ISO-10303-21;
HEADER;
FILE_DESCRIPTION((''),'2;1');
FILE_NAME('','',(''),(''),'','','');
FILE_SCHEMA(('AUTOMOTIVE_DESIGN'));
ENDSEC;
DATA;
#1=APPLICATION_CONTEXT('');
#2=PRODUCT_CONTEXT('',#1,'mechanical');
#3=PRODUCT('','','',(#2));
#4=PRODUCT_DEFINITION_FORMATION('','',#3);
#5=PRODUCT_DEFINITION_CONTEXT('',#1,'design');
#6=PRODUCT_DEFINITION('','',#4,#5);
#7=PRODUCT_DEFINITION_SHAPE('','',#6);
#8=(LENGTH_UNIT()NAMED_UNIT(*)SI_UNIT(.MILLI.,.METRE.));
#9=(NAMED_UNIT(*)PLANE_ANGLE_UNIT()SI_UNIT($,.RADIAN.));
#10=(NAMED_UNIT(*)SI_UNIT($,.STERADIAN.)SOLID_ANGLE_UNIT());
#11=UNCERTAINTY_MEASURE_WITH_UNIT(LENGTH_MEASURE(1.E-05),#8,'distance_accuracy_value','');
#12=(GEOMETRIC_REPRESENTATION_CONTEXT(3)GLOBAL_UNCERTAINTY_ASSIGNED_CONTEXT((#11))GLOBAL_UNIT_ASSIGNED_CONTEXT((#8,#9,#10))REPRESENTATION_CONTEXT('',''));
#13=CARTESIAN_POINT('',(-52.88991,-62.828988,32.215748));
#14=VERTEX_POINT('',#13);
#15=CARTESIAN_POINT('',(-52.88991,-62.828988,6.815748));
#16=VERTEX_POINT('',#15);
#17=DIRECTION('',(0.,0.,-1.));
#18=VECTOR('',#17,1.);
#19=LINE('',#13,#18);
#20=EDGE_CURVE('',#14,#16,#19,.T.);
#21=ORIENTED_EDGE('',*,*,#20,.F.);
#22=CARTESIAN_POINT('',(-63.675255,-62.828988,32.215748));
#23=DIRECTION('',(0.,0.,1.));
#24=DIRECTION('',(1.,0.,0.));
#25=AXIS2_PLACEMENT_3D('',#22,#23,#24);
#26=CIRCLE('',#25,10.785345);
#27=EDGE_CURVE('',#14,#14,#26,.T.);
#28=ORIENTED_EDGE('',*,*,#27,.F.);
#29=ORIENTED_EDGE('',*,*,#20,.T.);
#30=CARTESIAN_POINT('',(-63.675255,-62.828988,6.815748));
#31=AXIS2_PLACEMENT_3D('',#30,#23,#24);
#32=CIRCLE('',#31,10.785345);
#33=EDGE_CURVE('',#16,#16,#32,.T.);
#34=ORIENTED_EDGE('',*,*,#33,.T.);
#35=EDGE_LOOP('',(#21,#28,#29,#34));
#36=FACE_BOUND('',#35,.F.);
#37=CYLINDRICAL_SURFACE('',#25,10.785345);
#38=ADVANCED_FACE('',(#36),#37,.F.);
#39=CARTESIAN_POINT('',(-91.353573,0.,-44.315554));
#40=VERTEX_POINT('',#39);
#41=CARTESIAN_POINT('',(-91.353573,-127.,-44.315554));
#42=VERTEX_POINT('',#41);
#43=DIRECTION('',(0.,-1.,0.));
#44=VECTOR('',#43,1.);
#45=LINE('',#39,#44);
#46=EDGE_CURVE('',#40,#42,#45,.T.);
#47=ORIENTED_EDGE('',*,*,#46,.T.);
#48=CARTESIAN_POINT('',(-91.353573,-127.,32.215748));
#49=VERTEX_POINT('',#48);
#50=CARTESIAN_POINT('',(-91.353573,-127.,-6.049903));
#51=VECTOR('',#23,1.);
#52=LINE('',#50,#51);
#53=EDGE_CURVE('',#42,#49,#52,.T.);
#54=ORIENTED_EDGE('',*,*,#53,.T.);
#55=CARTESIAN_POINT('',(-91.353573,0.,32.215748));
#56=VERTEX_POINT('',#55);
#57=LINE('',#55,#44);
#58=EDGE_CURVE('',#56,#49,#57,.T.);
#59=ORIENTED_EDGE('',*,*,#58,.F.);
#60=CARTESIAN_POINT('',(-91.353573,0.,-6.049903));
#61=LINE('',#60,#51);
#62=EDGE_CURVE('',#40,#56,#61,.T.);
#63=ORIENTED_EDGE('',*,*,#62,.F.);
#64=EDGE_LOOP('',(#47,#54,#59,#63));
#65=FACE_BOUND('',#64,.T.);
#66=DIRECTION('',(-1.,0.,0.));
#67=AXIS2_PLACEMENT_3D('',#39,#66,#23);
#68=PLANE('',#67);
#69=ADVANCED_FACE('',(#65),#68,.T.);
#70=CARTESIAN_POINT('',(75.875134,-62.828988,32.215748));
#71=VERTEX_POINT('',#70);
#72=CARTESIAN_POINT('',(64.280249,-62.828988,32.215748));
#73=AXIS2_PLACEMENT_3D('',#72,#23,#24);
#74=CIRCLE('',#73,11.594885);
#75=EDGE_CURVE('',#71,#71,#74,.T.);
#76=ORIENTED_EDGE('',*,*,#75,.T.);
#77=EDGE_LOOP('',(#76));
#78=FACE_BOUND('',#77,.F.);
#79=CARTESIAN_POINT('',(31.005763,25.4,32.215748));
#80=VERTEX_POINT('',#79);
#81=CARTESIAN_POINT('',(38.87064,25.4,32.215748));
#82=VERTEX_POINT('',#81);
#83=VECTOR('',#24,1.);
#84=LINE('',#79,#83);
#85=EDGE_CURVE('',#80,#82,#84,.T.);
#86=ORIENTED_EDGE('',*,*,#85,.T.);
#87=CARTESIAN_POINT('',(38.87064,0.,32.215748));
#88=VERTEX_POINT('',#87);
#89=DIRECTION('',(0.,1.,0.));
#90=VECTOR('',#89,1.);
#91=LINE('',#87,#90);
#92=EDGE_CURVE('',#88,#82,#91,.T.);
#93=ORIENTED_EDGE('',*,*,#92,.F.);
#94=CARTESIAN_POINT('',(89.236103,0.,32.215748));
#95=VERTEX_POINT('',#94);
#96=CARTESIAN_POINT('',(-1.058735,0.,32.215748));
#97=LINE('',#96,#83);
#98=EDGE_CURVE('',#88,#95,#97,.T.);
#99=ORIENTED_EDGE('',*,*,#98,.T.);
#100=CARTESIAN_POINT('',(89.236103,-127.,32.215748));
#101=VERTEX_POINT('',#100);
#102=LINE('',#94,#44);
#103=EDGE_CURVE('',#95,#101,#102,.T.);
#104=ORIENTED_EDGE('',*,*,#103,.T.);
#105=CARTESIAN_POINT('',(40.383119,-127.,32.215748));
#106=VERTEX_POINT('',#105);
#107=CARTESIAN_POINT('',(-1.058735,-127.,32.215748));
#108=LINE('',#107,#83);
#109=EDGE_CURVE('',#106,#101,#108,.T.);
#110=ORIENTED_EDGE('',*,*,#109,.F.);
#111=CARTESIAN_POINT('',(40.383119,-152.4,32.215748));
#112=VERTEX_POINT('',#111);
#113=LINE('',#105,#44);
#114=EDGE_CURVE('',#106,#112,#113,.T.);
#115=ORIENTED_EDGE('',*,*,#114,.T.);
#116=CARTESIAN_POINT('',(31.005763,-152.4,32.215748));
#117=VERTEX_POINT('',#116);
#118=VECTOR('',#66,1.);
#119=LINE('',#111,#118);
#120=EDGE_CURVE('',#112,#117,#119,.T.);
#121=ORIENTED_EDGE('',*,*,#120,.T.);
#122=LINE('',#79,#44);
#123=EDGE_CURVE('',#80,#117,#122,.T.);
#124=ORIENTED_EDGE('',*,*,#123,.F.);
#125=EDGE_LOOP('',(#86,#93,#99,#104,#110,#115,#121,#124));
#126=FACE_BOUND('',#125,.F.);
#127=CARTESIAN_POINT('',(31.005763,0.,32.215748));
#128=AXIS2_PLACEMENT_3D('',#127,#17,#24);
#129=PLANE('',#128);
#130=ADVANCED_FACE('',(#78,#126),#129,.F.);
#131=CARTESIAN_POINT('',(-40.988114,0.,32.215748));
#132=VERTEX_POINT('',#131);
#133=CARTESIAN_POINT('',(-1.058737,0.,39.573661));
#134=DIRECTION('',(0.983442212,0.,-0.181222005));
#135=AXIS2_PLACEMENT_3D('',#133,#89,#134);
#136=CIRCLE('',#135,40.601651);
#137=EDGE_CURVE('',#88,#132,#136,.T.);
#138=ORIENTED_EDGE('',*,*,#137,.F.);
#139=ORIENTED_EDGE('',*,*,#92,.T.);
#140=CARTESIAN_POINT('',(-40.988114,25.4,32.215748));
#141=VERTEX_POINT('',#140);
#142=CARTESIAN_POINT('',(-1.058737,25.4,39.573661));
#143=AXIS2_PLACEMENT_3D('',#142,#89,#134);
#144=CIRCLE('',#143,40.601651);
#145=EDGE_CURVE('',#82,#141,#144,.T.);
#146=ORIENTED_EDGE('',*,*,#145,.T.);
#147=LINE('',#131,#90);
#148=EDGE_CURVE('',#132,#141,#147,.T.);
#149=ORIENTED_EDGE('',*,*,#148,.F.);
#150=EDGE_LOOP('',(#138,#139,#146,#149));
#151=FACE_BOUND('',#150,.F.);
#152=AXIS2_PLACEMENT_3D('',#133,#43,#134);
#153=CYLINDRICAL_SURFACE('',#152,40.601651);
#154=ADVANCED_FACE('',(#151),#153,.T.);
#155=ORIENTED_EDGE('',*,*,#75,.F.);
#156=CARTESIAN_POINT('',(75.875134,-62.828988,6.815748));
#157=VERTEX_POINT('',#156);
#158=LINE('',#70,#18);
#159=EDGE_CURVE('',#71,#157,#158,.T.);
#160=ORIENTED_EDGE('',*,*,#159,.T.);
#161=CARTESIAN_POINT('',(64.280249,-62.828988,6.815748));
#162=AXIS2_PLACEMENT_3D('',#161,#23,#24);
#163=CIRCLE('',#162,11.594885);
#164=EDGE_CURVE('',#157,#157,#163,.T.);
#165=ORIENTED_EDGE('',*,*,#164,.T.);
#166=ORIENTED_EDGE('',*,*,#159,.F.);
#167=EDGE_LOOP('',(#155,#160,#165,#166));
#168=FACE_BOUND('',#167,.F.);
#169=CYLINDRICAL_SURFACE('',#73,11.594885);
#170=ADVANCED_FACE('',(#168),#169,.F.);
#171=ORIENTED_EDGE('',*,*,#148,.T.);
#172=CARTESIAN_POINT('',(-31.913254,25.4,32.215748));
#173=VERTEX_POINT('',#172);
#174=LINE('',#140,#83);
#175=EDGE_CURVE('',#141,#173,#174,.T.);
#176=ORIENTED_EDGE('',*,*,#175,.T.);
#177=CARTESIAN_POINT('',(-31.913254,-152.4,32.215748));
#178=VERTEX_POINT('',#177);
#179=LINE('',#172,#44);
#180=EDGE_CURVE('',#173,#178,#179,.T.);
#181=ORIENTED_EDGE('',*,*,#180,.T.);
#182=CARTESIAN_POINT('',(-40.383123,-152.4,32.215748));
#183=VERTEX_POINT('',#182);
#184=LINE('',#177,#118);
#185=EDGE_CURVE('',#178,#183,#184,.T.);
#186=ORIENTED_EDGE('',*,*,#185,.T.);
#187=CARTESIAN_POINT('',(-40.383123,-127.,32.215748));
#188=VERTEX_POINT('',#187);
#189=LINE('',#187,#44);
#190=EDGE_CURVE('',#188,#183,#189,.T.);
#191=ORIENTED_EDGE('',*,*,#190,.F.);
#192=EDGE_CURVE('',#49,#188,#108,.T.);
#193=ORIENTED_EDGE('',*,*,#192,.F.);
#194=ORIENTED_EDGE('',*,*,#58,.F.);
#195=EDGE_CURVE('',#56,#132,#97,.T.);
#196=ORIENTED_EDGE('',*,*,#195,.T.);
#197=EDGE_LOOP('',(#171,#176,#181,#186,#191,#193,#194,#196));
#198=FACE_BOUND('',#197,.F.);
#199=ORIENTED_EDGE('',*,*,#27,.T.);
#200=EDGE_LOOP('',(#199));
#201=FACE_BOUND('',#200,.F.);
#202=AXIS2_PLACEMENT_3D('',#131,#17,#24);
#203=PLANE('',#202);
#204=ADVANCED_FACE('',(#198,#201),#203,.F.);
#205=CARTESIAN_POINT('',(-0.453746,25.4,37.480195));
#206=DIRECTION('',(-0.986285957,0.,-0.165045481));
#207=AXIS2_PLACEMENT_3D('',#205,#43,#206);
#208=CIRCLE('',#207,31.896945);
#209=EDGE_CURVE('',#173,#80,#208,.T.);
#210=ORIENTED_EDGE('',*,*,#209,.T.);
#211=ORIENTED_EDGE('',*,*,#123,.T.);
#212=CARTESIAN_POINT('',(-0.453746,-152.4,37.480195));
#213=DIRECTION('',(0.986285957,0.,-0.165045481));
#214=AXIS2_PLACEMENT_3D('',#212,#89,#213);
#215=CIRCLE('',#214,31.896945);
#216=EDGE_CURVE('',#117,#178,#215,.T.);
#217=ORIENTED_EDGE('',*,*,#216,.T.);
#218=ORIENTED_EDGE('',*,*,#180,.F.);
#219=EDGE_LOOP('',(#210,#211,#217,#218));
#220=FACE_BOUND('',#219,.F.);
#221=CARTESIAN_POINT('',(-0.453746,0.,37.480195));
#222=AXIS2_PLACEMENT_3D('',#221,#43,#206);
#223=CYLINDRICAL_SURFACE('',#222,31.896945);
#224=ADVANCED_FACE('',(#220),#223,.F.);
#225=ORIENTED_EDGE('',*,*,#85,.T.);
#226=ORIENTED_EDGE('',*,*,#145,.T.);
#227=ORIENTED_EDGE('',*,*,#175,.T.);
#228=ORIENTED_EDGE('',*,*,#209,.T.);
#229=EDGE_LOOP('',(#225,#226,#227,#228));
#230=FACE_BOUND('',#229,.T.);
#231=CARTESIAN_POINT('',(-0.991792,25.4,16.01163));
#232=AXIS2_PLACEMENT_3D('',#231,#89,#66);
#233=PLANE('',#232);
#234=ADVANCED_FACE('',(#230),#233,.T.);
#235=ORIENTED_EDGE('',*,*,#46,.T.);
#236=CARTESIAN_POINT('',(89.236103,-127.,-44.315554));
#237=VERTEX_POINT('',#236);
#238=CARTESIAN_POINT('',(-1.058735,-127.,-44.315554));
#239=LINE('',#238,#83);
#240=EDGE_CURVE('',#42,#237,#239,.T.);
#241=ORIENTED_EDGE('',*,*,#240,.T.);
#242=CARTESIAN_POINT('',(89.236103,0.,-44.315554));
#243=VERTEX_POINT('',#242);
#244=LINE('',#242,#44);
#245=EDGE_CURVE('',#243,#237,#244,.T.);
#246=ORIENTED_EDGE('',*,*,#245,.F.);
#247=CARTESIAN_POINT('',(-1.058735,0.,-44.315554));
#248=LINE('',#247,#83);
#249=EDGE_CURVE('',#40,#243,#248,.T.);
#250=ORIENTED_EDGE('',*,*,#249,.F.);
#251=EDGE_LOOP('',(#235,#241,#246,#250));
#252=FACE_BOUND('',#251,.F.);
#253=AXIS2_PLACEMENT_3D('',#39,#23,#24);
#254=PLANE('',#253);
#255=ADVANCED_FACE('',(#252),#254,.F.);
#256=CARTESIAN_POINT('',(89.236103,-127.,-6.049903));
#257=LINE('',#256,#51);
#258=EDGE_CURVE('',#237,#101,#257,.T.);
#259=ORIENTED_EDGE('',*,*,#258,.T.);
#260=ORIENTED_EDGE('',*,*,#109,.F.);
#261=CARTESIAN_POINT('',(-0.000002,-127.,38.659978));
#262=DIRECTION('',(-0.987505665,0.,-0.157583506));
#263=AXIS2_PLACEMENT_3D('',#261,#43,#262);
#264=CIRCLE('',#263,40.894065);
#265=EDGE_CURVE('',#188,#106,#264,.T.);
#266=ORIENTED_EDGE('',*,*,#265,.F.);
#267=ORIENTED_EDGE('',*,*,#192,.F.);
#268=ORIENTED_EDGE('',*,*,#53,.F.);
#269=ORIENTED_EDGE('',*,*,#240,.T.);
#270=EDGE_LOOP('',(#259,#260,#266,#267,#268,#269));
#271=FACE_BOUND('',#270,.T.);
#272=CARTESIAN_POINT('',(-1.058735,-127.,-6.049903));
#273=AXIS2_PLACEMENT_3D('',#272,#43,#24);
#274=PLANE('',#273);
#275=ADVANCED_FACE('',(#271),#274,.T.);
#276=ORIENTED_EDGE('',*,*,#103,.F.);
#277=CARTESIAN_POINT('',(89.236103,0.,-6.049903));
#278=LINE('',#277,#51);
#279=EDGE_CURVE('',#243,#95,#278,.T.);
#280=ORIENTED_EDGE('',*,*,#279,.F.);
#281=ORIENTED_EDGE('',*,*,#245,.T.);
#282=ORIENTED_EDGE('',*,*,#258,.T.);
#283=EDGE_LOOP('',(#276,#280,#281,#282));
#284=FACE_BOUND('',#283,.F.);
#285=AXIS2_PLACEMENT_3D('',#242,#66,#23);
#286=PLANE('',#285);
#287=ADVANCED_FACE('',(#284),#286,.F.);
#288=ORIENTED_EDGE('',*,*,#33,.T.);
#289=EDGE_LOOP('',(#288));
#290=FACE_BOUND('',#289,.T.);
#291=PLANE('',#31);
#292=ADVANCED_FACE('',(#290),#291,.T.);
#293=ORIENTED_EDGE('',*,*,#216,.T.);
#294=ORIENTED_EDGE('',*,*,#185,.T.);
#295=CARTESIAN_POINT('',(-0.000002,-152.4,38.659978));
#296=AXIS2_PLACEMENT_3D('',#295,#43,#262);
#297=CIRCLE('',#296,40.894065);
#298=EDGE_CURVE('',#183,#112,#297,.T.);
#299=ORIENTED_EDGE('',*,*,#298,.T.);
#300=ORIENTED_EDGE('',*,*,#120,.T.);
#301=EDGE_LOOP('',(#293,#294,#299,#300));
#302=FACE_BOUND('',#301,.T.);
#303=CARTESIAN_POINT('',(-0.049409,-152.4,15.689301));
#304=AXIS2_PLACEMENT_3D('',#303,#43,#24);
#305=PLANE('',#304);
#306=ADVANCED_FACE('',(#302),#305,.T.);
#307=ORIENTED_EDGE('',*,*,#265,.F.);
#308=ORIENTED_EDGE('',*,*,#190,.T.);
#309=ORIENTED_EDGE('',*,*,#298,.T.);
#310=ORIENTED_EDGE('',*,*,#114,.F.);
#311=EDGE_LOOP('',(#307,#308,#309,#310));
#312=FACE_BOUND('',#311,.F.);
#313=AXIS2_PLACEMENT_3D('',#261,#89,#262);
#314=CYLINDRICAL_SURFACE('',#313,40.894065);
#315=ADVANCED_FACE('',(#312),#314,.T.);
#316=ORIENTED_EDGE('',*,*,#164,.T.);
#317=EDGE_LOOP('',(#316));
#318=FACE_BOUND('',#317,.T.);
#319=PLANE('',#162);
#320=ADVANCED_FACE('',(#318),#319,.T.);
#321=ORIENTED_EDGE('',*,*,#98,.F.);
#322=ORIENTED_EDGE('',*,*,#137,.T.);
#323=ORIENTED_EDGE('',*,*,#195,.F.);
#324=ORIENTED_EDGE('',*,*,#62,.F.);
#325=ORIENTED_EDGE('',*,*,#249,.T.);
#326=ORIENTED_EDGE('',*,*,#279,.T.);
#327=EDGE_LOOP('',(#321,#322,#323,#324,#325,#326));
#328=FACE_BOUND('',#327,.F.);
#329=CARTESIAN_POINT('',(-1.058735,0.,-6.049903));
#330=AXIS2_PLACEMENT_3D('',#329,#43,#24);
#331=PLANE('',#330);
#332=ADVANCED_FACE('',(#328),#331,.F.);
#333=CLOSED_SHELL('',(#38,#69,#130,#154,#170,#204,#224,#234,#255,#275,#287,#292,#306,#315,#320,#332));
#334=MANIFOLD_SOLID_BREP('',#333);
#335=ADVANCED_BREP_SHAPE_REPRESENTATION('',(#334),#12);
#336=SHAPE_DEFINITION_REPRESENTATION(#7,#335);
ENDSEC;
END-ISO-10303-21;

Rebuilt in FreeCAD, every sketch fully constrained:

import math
import FreeCAD as App
import Part
import Sketcher
from FreeCAD import Vector
Q = App.Units.Quantity


def add_polygon(sketch, points):
    """Adds a closed chain of lines whose ends are joined by coincident constraints."""
    first, n = sketch.GeometryCount, len(points)
    for a, b in zip(points, points[1:] + points[:1]):
        sketch.addGeometry(Part.LineSegment(App.Vector(*a, 0), App.Vector(*b, 0)), False)
    for i in range(n):
        sketch.addConstraint(Sketcher.Constraint("Coincident", first + i, 2, first + (i + 1) % n, 1))

doc = App.newDocument("Part")
body = doc.addObject("PartDesign::Body", "Body")

sketch1 = body.newObject("Sketcher::SketchObject", "Sketch")
sketch1.AttachmentSupport = (doc.getObject("XZ_Plane"), [""])
sketch1.MapMode = "FlatFace"
add_polygon(sketch1, [(-91, 32), (-91, -44), (89, -44), (89, 32)])
sketch1.addConstraint(Sketcher.Constraint("Vertical", 0))
sketch1.addConstraint(Sketcher.Constraint("Horizontal", 1))
sketch1.addConstraint(Sketcher.Constraint("Vertical", 2))
sketch1.addConstraint(Sketcher.Constraint("Horizontal", 3))
sketch1.addConstraint(Sketcher.Constraint("DistanceY", 0, 2, 0, 1, Q("76.531302 mm")))
sketch1.addConstraint(Sketcher.Constraint("DistanceX", 1, 1, 1, 2, Q("180.589676 mm")))
sketch1.addConstraint(Sketcher.Constraint("DistanceX", 0, 2, -1, 1, Q("91.353573 mm")))
sketch1.addConstraint(Sketcher.Constraint("DistanceY", 0, 2, -1, 1, Q("44.315554 mm")))
pad1 = body.newObject("PartDesign::Pad", "Pad")
pad1.Profile = sketch1
pad1.Length = Q("5 in")

sketch2 = body.newObject("Sketcher::SketchObject", "Sketch001")
sketch2.AttachmentSupport = (doc.getObject("XZ_Plane"), [""])
sketch2.MapMode = "FlatFace"
sketch2.AttachmentOffset = App.Placement(Vector(0, 0, 5 * 25.4), App.Rotation())
sketch2.addGeometry(Part.LineSegment(Vector(31, 32, 0), Vector(-32, 32, 0)), False)
sketch2.addGeometry(Part.ArcOfCircle(Part.Circle(Vector(0, 37, 0), Vector(0, 0, 1), 32), math.radians(-171), math.radians(-9)), False)
sketch2.addConstraint(Sketcher.Constraint("Coincident", 0, 1, 1, 2))
sketch2.addConstraint(Sketcher.Constraint("Coincident", 1, 1, 0, 2))
sketch2.addConstraint(Sketcher.Constraint("Horizontal", 0))
sketch2.addConstraint(Sketcher.Constraint("Radius", 1, Q("31.896945 mm")))
sketch2.addConstraint(Sketcher.Constraint("DistanceX", 0, 2, 0, 1, Q("62.919017 mm")))
sketch2.addConstraint(Sketcher.Constraint("DistanceY", -1, 1, 1, 1, Q("32.215748 mm")))
sketch2.addConstraint(Sketcher.Constraint("DistanceX", 1, 3, -1, 1, Q("0.453746 mm")))
pocket1 = body.newObject("PartDesign::Pocket", "Pocket")
pocket1.Profile = sketch2
pocket1.Type = "ThroughAll"

sketch3 = body.newObject("Sketcher::SketchObject", "Sketch002")
sketch3.AttachmentSupport = (doc.getObject("XZ_Plane"), [""])
sketch3.MapMode = "FlatFace"
sketch3.AttachmentOffset = App.Placement(Vector(0, 0, 5 * 25.4), App.Rotation())
sketch3.addGeometry(Part.ArcOfCircle(Part.Circle(Vector(0, 37, 0), Vector(0, 0, 1), 32), math.radians(-171), math.radians(-9)), False)
sketch3.addGeometry(Part.LineSegment(Vector(-32, 32, 0), Vector(-40, 32, 0)), False)
sketch3.addGeometry(Part.ArcOfCircle(Part.Circle(Vector(0, 39, 0), Vector(0, 0, 1), 41), math.radians(-171), math.radians(-9)), False)
sketch3.addGeometry(Part.LineSegment(Vector(40, 32, 0), Vector(31, 32, 0)), False)
sketch3.addConstraint(Sketcher.Constraint("Coincident", 0, 1, 1, 1))
sketch3.addConstraint(Sketcher.Constraint("Coincident", 1, 2, 2, 1))
sketch3.addConstraint(Sketcher.Constraint("Coincident", 2, 2, 3, 1))
sketch3.addConstraint(Sketcher.Constraint("Coincident", 3, 2, 0, 2))
sketch3.addConstraint(Sketcher.Constraint("Horizontal", 1))
sketch3.addConstraint(Sketcher.Constraint("Horizontal", 3))
sketch3.addConstraint(Sketcher.Constraint("Symmetric", 1, 2, 2, 2, -2))
sketch3.addConstraint(Sketcher.Constraint("Radius", 0, Q("31.896945 mm")))
sketch3.addConstraint(Sketcher.Constraint("Radius", 2, Q("40.894065 mm")))
sketch3.addConstraint(Sketcher.Constraint("DistanceX", 1, 2, 1, 1, Q("8.469869 mm")))
sketch3.addConstraint(Sketcher.Constraint("DistanceX", 3, 2, 3, 1, Q("9.377356 mm")))
sketch3.addConstraint(Sketcher.Constraint("DistanceY", -1, 1, 2, 3, Q("38.659978 mm")))
sketch3.addConstraint(Sketcher.Constraint("DistanceY", -1, 1, 0, 1, Q("32.215748 mm")))
pad2 = body.newObject("PartDesign::Pad", "Pad001")
pad2.Profile = sketch3
pad2.Length = Q("1 in")

sketch4 = body.newObject("Sketcher::SketchObject", "Sketch003")
sketch4.AttachmentSupport = (doc.getObject("XZ_Plane"), [""])
sketch4.MapMode = "FlatFace"
sketch4.addGeometry(Part.LineSegment(Vector(31, 32, 0), Vector(39, 32, 0)), False)
sketch4.addGeometry(Part.ArcOfCircle(Part.Circle(Vector(-1, 40, 0), Vector(0, 0, 1), 41), math.radians(-170), math.radians(-10)), False)
sketch4.addGeometry(Part.LineSegment(Vector(-41, 32, 0), Vector(-32, 32, 0)), False)
sketch4.addGeometry(Part.ArcOfCircle(Part.Circle(Vector(0, 37, 0), Vector(0, 0, 1), 32), math.radians(-171), math.radians(-9)), False)
sketch4.addConstraint(Sketcher.Constraint("Coincident", 0, 2, 1, 2))
sketch4.addConstraint(Sketcher.Constraint("Coincident", 1, 1, 2, 1))
sketch4.addConstraint(Sketcher.Constraint("Coincident", 2, 2, 3, 1))
sketch4.addConstraint(Sketcher.Constraint("Coincident", 3, 2, 0, 1))
sketch4.addConstraint(Sketcher.Constraint("Horizontal", 0))
sketch4.addConstraint(Sketcher.Constraint("Horizontal", 2))
sketch4.addConstraint(Sketcher.Constraint("Horizontal", 0, 2, 1, 1))
sketch4.addConstraint(Sketcher.Constraint("Radius", 1, Q("40.601651 mm")))
sketch4.addConstraint(Sketcher.Constraint("Radius", 3, Q("31.896945 mm")))
sketch4.addConstraint(Sketcher.Constraint("DistanceX", 2, 1, 2, 2, Q("9.07486 mm")))
sketch4.addConstraint(Sketcher.Constraint("DistanceX", 1, 3, 3, 2, Q("32.0645 mm")))
sketch4.addConstraint(Sketcher.Constraint("DistanceX", 0, 1, 0, 2, Q("7.864877 mm")))
sketch4.addConstraint(Sketcher.Constraint("DistanceY", -1, 1, 1, 3, Q("39.573661 mm")))
sketch4.addConstraint(Sketcher.Constraint("DistanceX", -1, 1, 0, 2, Q("38.87064 mm")))
pad3 = body.newObject("PartDesign::Pad", "Pad002")
pad3.Profile = sketch4
pad3.Length = Q("1 in")
pad3.Reversed = True

sketch5 = body.newObject("Sketcher::SketchObject", "Sketch004")
sketch5.AttachmentSupport = (doc.getObject("XY_Plane"), [""])
sketch5.MapMode = "FlatFace"
sketch5.AttachmentOffset = App.Placement(Vector(0, 0, 32.215748), App.Rotation())
sketch5.addGeometry(Part.Circle(Vector(-64, -63, 0), Vector(0, 0, 1), 11), False)
sketch5.addGeometry(Part.Circle(Vector(64, -63, 0), Vector(0, 0, 1), 12), False)
sketch5.addConstraint(Sketcher.Constraint("Horizontal", 0, 3, 1, 3))
sketch5.addConstraint(Sketcher.Constraint("Diameter", 0, Q("21.57069 mm")))
sketch5.addConstraint(Sketcher.Constraint("Diameter", 1, Q("23.18977 mm")))
sketch5.addConstraint(Sketcher.Constraint("DistanceX", 0, 3, -1, 1, Q("2.5068998 in")))
sketch5.addConstraint(Sketcher.Constraint("DistanceY", 0, 3, -1, 1, Q("62.828988 mm")))
sketch5.addConstraint(Sketcher.Constraint("DistanceX", -1, 1, 1, 3, Q("64.280249 mm")))
pocket2 = body.newObject("PartDesign::Pocket", "Pocket001")
pocket2.Profile = sketch5
pocket2.Length = Q("1 in")

doc.recompute()
